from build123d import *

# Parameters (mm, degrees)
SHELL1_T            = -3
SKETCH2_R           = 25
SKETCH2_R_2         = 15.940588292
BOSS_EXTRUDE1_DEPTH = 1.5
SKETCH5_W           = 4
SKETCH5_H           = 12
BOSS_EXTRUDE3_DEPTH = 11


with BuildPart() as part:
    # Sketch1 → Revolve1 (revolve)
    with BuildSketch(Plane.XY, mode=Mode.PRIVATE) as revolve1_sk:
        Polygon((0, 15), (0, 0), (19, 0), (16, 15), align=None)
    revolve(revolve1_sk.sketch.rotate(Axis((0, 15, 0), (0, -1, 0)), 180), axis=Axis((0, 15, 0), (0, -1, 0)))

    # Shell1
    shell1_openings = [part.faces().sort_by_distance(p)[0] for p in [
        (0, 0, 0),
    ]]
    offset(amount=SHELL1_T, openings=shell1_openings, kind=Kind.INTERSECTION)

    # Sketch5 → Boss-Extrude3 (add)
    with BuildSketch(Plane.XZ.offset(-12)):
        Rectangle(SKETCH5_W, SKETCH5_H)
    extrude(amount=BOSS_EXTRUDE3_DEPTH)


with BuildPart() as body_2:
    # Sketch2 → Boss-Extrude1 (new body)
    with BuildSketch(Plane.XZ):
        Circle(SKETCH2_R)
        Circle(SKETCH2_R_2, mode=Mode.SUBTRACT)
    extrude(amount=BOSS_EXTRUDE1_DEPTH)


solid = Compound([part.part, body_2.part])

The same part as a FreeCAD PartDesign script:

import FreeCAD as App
import Part
import Sketcher


def faces_at(feature, points):
    """Names of the faces that lie closest to the given points."""
    faces = feature.Shape.Faces
    near = lambda p: min(range(len(faces)), key=lambda i: faces[i].distToShape(Part.Vertex(*p))[0])
    return sorted({f"Face{near(p) + 1}" for p in points})


def add_polygon(sketch, points):
    """Adds a closed chain of lines whose ends are joined by coincident constraints."""
    first, n = sketch.GeometryCount, len(points)
    for a, b in zip(points, points[1:] + points[:1]):
        sketch.addGeometry(Part.LineSegment(App.Vector(*a, 0), App.Vector(*b, 0)), False)
    for i in range(n):
        sketch.addConstraint(Sketcher.Constraint("Coincident", first + i, 2, first + (i + 1) % n, 1))

doc = App.newDocument("Part")
body = doc.addObject("PartDesign::Body", "Body")

sketch1 = body.newObject("Sketcher::SketchObject", "Sketch")
sketch1.AttachmentSupport = (doc.getObject("XY_Plane"), [""])
sketch1.MapMode = "FlatFace"
add_polygon(sketch1, [(0, 15), (0, 0), (19, 0), (16, 15)])
sketch1.addConstraint([
    Sketcher.Constraint("Vertical", 0),
    Sketcher.Constraint("Horizontal", 1),
    Sketcher.Constraint("Horizontal", 3),
    Sketcher.Constraint("Coincident", 0, 2, -1, 1),
    Sketcher.Constraint("DistanceX", 1, 1, 1, 2, 19.0),
    Sketcher.Constraint("DistanceX", 3, 2, 3, 1, 16.0),
    Sketcher.Constraint("DistanceY", 0, 2, 0, 1, 15.0),
])
revolution = body.newObject("PartDesign::Revolution", "Revolution")
revolution.Profile = sketch1
revolution.ReferenceAxis = (sketch1, ["V_Axis"])
revolution.Angle = 360
doc.recompute()

thickness = body.newObject("PartDesign::Thickness", "Thickness")
thickness.Base = (revolution, faces_at(revolution, [(0, 0, 0)]))
thickness.Value = 3
thickness.Reversed = True
thickness.Join = "Intersection"

sketch2 = body.newObject("Sketcher::SketchObject", "Sketch001")
sketch2.AttachmentSupport = (doc.getObject("XZ_Plane"), [""])
sketch2.MapMode = "FlatFace"
sketch2.AttachmentOffset = App.Placement(App.Vector(0, 0, -12), App.Rotation())
add_polygon(sketch2, [(-2, 6), (-2, -6), (2, -6), (2, 6)])
sketch2.addConstraint([
    Sketcher.Constraint("Vertical", 0),
    Sketcher.Constraint("Horizontal", 1),
    Sketcher.Constraint("Vertical", 2),
    Sketcher.Constraint("Horizontal", 3),
    Sketcher.Constraint("Symmetric", 0, 2, 2, 2, -1, 1),
    Sketcher.Constraint("DistanceX", 1, 1, 1, 2, 4.0),
    Sketcher.Constraint("DistanceY", 0, 2, 0, 1, 12.0),
])
pad1 = body.newObject("PartDesign::Pad", "Pad")
pad1.Profile = sketch2
pad1.Length = 11
body2 = doc.addObject("PartDesign::Body", "Body001")

sketch3 = body2.newObject("Sketcher::SketchObject", "Sketch002")
sketch3.AttachmentSupport = (doc.getObject("XZ_Plane001"), [""])
sketch3.MapMode = "FlatFace"
sketch3.addGeometry([
    Part.Circle(App.Vector(0, 0, 0), App.Vector(0, 0, 1), 25),
    Part.Circle(App.Vector(0, 0, 0), App.Vector(0, 0, 1), 16),
], False)
sketch3.addConstraint([
    Sketcher.Constraint("Coincident", 0, 3, -1, 1),
    Sketcher.Constraint("Coincident", 1, 3, -1, 1),
    Sketcher.Constraint("Diameter", 0, 50.0),
    Sketcher.Constraint("Diameter", 1, 31.881177),
])
pad2 = body2.newObject("PartDesign::Pad", "Pad001")
pad2.Profile = sketch3
pad2.Length = 1.5

doc.recompute()
